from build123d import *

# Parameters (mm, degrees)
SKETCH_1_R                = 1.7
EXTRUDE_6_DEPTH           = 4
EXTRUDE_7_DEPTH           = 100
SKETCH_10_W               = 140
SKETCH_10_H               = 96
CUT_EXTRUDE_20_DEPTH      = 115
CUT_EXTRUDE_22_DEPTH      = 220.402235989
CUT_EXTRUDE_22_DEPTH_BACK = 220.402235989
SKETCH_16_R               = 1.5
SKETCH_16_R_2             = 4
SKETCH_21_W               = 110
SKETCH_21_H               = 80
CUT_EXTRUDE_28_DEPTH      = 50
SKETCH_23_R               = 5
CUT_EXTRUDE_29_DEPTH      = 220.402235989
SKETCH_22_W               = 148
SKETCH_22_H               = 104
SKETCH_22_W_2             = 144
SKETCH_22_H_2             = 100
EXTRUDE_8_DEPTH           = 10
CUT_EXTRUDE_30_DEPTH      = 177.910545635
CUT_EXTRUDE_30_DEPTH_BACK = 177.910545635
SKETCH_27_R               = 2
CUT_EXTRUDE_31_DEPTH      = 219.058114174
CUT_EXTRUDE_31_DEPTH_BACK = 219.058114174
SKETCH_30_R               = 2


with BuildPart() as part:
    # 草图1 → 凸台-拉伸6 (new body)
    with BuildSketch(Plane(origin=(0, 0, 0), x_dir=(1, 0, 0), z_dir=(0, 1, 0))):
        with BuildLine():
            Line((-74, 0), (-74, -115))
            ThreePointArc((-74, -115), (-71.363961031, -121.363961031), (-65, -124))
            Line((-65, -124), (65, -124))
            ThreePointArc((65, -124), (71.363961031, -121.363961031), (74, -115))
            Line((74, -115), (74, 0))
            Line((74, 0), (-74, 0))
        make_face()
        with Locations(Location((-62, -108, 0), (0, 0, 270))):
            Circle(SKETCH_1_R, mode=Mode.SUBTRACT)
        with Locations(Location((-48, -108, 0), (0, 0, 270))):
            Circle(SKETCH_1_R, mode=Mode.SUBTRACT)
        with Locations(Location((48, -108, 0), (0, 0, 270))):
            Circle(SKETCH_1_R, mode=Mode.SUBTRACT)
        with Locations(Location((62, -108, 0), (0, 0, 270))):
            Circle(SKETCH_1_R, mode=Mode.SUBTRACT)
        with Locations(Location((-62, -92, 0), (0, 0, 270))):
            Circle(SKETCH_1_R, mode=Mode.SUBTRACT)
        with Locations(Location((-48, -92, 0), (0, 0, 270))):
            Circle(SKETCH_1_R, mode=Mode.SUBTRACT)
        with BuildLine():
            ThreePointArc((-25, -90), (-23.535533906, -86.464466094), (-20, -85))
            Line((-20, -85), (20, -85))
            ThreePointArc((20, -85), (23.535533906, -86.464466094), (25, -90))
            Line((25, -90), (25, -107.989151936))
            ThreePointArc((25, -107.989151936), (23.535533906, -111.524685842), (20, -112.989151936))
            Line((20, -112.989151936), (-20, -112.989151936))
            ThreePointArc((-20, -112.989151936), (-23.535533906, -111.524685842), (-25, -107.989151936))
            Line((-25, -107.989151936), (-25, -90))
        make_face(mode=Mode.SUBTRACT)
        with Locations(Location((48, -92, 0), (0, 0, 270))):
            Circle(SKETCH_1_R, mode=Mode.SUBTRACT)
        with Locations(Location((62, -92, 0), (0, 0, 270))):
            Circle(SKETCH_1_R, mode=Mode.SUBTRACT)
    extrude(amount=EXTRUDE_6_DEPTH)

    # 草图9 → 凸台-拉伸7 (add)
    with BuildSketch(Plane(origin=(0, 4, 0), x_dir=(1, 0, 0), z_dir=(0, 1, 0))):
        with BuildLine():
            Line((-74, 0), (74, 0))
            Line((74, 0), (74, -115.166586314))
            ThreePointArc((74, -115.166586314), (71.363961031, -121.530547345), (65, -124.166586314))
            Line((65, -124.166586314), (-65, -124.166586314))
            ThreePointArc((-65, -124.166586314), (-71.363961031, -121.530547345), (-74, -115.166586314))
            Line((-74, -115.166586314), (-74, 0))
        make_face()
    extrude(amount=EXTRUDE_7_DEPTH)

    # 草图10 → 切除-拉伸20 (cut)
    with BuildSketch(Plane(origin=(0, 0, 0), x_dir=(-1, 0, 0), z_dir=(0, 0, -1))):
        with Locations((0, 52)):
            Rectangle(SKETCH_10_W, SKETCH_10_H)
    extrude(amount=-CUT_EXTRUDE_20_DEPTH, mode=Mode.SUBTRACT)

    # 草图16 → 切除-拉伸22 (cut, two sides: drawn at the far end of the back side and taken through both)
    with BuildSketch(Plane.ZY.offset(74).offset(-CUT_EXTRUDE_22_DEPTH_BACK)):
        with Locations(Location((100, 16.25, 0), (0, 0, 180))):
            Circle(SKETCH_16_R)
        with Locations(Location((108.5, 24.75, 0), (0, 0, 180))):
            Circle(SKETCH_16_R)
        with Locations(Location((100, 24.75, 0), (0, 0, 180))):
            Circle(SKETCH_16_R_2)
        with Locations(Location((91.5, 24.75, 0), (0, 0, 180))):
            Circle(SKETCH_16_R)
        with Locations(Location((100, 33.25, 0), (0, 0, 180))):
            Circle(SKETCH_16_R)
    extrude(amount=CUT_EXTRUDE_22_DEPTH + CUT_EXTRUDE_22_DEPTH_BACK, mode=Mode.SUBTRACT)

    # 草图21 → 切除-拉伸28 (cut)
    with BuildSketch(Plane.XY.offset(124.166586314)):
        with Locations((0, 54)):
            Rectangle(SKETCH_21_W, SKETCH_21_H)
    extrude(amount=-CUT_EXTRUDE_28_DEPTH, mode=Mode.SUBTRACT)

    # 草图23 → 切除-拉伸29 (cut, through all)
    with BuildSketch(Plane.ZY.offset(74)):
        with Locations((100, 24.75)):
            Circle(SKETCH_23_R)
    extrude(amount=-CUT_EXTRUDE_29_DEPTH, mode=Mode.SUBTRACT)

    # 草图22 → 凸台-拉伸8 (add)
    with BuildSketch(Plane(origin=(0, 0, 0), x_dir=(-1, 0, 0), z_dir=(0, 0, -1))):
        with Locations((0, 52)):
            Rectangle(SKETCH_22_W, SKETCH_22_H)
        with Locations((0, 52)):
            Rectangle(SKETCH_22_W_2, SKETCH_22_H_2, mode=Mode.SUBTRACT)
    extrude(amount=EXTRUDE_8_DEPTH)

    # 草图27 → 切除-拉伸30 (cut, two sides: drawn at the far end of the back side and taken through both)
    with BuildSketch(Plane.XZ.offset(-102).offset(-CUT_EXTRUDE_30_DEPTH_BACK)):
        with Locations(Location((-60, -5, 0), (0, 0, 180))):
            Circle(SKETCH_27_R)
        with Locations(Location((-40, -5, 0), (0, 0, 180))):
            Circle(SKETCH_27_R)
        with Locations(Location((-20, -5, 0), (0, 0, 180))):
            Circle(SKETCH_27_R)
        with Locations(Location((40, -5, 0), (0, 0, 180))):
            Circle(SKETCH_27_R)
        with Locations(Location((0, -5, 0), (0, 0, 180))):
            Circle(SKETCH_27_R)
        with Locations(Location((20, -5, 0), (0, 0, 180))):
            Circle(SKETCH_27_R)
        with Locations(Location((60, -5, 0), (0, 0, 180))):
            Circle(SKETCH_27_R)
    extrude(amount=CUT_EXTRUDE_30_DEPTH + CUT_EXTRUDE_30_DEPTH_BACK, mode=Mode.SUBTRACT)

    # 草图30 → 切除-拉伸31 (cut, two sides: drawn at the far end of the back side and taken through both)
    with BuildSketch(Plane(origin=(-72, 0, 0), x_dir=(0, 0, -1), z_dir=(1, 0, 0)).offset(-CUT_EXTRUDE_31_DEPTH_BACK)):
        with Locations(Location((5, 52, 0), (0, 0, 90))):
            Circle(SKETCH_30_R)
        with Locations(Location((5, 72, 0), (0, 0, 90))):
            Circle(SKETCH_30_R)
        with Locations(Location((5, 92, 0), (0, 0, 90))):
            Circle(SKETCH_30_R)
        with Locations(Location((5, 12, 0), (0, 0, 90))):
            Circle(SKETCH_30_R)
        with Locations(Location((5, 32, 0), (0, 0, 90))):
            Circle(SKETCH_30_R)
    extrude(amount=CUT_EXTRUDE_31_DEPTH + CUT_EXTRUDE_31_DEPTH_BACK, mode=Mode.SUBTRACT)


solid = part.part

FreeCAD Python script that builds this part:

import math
import FreeCAD as App
import Part
import Sketcher

V = App.Vector
Q = App.Units.Quantity

doc = App.newDocument("Part")
body = doc.addObject("PartDesign::Body", "Body")

sketch1 = doc.addObject("Sketcher::SketchObject", "Sketch")
body.addObject(sketch1)
sketch1.AttachmentSupport = (doc.XZ_Plane, [""])
sketch1.MapMode = "FlatFace"
sketch1.addGeometry([
    Part.LineSegment(V(-74, 0, 0), V(-74, 115, 0)),
    Part.ArcOfCircle(Part.Circle(V(-65, 115, 0), V(0, 0, 1), 9), math.radians(90), math.radians(180)),
    Part.LineSegment(V(-65, 124, 0), V(65, 124, 0)),
    Part.ArcOfCircle(Part.Circle(V(65, 115, 0), V(0, 0, 1), 9), math.radians(0), math.radians(90)),
    Part.LineSegment(V(74, 115, 0), V(74, 0, 0)),
    Part.LineSegment(V(74, 0, 0), V(-74, 0, 0)),
    Part.Circle(V(-62, 108, 0), V(0, 0, 1), 1.7),
    Part.Circle(V(-48, 108, 0), V(0, 0, 1), 1.7),
    Part.Circle(V(48, 108, 0), V(0, 0, 1), 1.7),
    Part.Circle(V(62, 108, 0), V(0, 0, 1), 1.7),
    Part.LineSegment(V(-25, 107.989152, 0), V(-25, 90, 0)),
    Part.ArcOfCircle(Part.Circle(V(-20, 90, 0), V(0, 0, 1), 5), math.radians(180), math.radians(270)),
    Part.LineSegment(V(-20, 85, 0), V(20, 85, 0)),
    Part.ArcOfCircle(Part.Circle(V(20, 90, 0), V(0, 0, 1), 5), math.radians(-90), math.radians(0)),
    Part.LineSegment(V(25, 90, 0), V(25, 107.989152, 0)),
    Part.ArcOfCircle(Part.Circle(V(20, 107.989152, 0), V(0, 0, 1), 5), math.radians(0), math.radians(90)),
    Part.LineSegment(V(20, 112.989152, 0), V(-20, 112.989152, 0)),
    Part.ArcOfCircle(Part.Circle(V(-20, 107.989152, 0), V(0, 0, 1), 5), math.radians(90), math.radians(180)),
    Part.Circle(V(-62, 92, 0), V(0, 0, 1), 1.7),
    Part.Circle(V(-48, 92, 0), V(0, 0, 1), 1.7),
    Part.Circle(V(48, 92, 0), V(0, 0, 1), 1.7),
    Part.Circle(V(62, 92, 0), V(0, 0, 1), 1.7),
], False)
sketch1.addConstraint([
    Sketcher.Constraint("Tangent", 0, 2, 1, 2),
    Sketcher.Constraint("Tangent", 1, 1, 2, 1),
    Sketcher.Constraint("Tangent", 2, 2, 3, 2),
    Sketcher.Constraint("Tangent", 3, 1, 4, 1),
    Sketcher.Constraint("Coincident", 4, 2, 5, 1),
    Sketcher.Constraint("Coincident", 5, 2, 0, 1),
    Sketcher.Constraint("Tangent", 10, 2, 11, 1),
    Sketcher.Constraint("Tangent", 11, 2, 12, 1),
    Sketcher.Constraint("Tangent", 12, 2, 13, 1),
    Sketcher.Constraint("Tangent", 13, 2, 14, 1),
    Sketcher.Constraint("Tangent", 14, 2, 15, 1),
    Sketcher.Constraint("Tangent", 15, 2, 16, 1),
    Sketcher.Constraint("Tangent", 16, 2, 17, 1),
    Sketcher.Constraint("Tangent", 17, 2, 10, 1),
    Sketcher.Constraint("Vertical", 0),
    Sketcher.Constraint("Horizontal", 2),
    Sketcher.Constraint("Vertical", 4),
    Sketcher.Constraint("Horizontal", 5),
    Sketcher.Constraint("Vertical", 10),
    Sketcher.Constraint("Horizontal", 12),
    Sketcher.Constraint("Vertical", 14),
    Sketcher.Constraint("Horizontal", 16),
    Sketcher.Constraint("Equal", 1, 3),
    Sketcher.Constraint("Equal", 6, 7),
    Sketcher.Constraint("Equal", 7, 8),
    Sketcher.Constraint("Equal", 8, 9),
    Sketcher.Constraint("Equal", 11, 13),
    Sketcher.Constraint("Equal", 13, 15),
    Sketcher.Constraint("Equal", 15, 17),
    Sketcher.Constraint("Equal", 9, 18),
    Sketcher.Constraint("Equal", 18, 19),
    Sketcher.Constraint("Equal", 19, 20),
    Sketcher.Constraint("Equal", 20, 21),
    Sketcher.Constraint("Symmetric", 4, 2, 5, 2, -1, 1),
    Sketcher.Constraint("Symmetric", 7, 3, 8, 3, -2),
    Sketcher.Constraint("Symmetric", 6, 3, 9, 3, -2),
    Sketcher.Constraint("Symmetric", 19, 3, 20, 3, -2),
    Sketcher.Constraint("Symmetric", 18, 3, 21, 3, -2),
    Sketcher.Constraint("Horizontal", 6, 3, 7, 3),
    Sketcher.Constraint("Horizontal", 18, 3, 19, 3),
    Sketcher.Constraint("Vertical", 6, 3, 18, 3),
    Sketcher.Constraint("Vertical", 7, 3, 19, 3),
    Sketcher.Constraint("Radius", 1, Q("9 mm")),
    Sketcher.Constraint("Radius", 11, Q("5 mm")),
    Sketcher.Constraint("Diameter", 6, Q("3.4 mm")),
    Sketcher.Constraint("DistanceX", 2, 1, 2, 2, Q("130 mm")),
    Sketcher.Constraint("DistanceX", 12, 1, 12, 2, Q("40 mm")),
    Sketcher.Constraint("DistanceY", 0, 1, 0, 2, Q("115 mm")),
    Sketcher.Constraint("DistanceX", 6, 3, -1, 1, Q("62 mm")),
    Sketcher.Constraint("DistanceY", -1, 1, 6, 3, Q("108 mm")),
    Sketcher.Constraint("DistanceX", 7, 3, -1, 1, Q("48 mm")),
    Sketcher.Constraint("DistanceX", 11, 3, -1, 1, Q("20 mm")),
    Sketcher.Constraint("DistanceY", -1, 1, 11, 3, Q("90 mm")),
    Sketcher.Constraint("DistanceY", -1, 1, 18, 3, Q("92 mm")),
    Sketcher.Constraint("DistanceY", 10, 2, 10, 1, Q("17.989152 mm")),
])
pad1 = doc.addObject("PartDesign::Pad", "Pad")
body.addObject(pad1)
pad1.Profile = sketch1
pad1.Length = 4
pad1.Reversed = True

sketch2 = doc.addObject("Sketcher::SketchObject", "Sketch001")
body.addObject(sketch2)
sketch2.AttachmentSupport = (doc.XZ_Plane, [""])
sketch2.MapMode = "FlatFace"
sketch2.AttachmentOffset = App.Placement(V(0, 0, -4), App.Rotation())
sketch2.addGeometry([
    Part.LineSegment(V(74, 0, 0), V(-74, 0, 0)),
    Part.LineSegment(V(-74, 0, 0), V(-74, 115.166586, 0)),
    Part.ArcOfCircle(Part.Circle(V(-65, 115.166586, 0), V(0, 0, 1), 9), math.radians(90), math.radians(180)),
    Part.LineSegment(V(-65, 124.166586, 0), V(65, 124.166586, 0)),
    Part.ArcOfCircle(Part.Circle(V(65, 115.166586, 0), V(0, 0, 1), 9), math.radians(0), math.radians(90)),
    Part.LineSegment(V(74, 115.166586, 0), V(74, 0, 0)),
], False)
sketch2.addConstraint([
    Sketcher.Constraint("Coincident", 0, 2, 1, 1),
    Sketcher.Constraint("Tangent", 1, 2, 2, 2),
    Sketcher.Constraint("Tangent", 2, 1, 3, 1),
    Sketcher.Constraint("Tangent", 3, 2, 4, 2),
    Sketcher.Constraint("Tangent", 4, 1, 5, 1),
    Sketcher.Constraint("Coincident", 5, 2, 0, 1),
    Sketcher.Constraint("Horizontal", 0),
    Sketcher.Constraint("Vertical", 1),
    Sketcher.Constraint("Horizontal", 3),
    Sketcher.Constraint("Vertical", 5),
    Sketcher.Constraint("Equal", 2, 4),
    Sketcher.Constraint("Symmetric", 0, 2, 5, 2, -1, 1),
    Sketcher.Constraint("Radius", 2, Q("9 mm")),
    Sketcher.Constraint("DistanceX", 0, 2, 0, 1, Q("148 mm")),
    Sketcher.Constraint("DistanceY", 1, 1, 1, 2, Q("115.166586 mm")),
])
pad2 = doc.addObject("PartDesign::Pad", "Pad001")
body.addObject(pad2)
pad2.Profile = sketch2
pad2.Length = 100
pad2.Reversed = True

sketch3 = doc.addObject("Sketcher::SketchObject", "Sketch002")
body.addObject(sketch3)
sketch3.AttachmentSupport = (doc.XY_Plane, [""])
sketch3.MapMode = "FlatFace"
sketch3.addGeometry([
    Part.LineSegment(V(70, 100, 0), V(70, 4, 0)),
    Part.LineSegment(V(70, 4, 0), V(-70, 4, 0)),
    Part.LineSegment(V(-70, 4, 0), V(-70, 100, 0)),
    Part.LineSegment(V(-70, 100, 0), V(70, 100, 0)),
], False)
sketch3.addConstraint([
    Sketcher.Constraint("Coincident", 0, 2, 1, 1),
    Sketcher.Constraint("Coincident", 1, 2, 2, 1),
    Sketcher.Constraint("Coincident", 2, 2, 3, 1),
    Sketcher.Constraint("Coincident", 3, 2, 0, 1),
    Sketcher.Constraint("Vertical", 0),
    Sketcher.Constraint("Horizontal", 1),
    Sketcher.Constraint("Vertical", 2),
    Sketcher.Constraint("Horizontal", 3),
    Sketcher.Constraint("DistanceX", 1, 2, 1, 1, Q("140 mm")),
    Sketcher.Constraint("DistanceY", 0, 2, 0, 1, Q("96 mm")),
    Sketcher.Constraint("DistanceX", -1, 1, 0, 2, Q("70 mm")),
    Sketcher.Constraint("DistanceY", -1, 1, 0, 2, Q("4 mm")),
])
pocket1 = doc.addObject("PartDesign::Pocket", "Pocket")
body.addObject(pocket1)
pocket1.Profile = sketch3
pocket1.Length = 115
pocket1.Reversed = True

sketch4 = doc.addObject("Sketcher::SketchObject", "Sketch003")
body.addObject(sketch4)
sketch4.AttachmentSupport = (doc.YZ_Plane, [""])
sketch4.MapMode = "FlatFace"
sketch4.AttachmentOffset = App.Placement(V(0, 0, -74), App.Rotation())
sketch4.addGeometry([
    Part.Circle(V(16.25, 100, 0), V(0, 0, 1), 1.5),
    Part.Circle(V(24.75, 108.5, 0), V(0, 0, 1), 1.5),
    Part.Circle(V(24.75, 100, 0), V(0, 0, 1), 4),
    Part.Circle(V(24.75, 91.5, 0), V(0, 0, 1), 1.5),
    Part.Circle(V(33.25, 100, 0), V(0, 0, 1), 1.5),
], False)
sketch4.addConstraint([
    Sketcher.Constraint("Equal", 0, 1),
    Sketcher.Constraint("Equal", 1, 3),
    Sketcher.Constraint("Equal", 3, 4),
    Sketcher.Constraint("Horizontal", 0, 3, 2, 3),
    Sketcher.Constraint("Horizontal", 2, 3, 4, 3),
    Sketcher.Constraint("Vertical", 1, 3, 2, 3),
    Sketcher.Constraint("Vertical", 2, 3, 3, 3),
    Sketcher.Constraint("Diameter", 0, Q("3 mm")),
    Sketcher.Constraint("Diameter", 2, Q("8 mm")),
    Sketcher.Constraint("DistanceY", -1, 1, 0, 3, Q("100 mm")),
    Sketcher.Constraint("DistanceY", 3, 3, 1, 3, Q("17 mm")),
    Sketcher.Constraint("DistanceX", 0, 3, 4, 3, Q("17 mm")),
    Sketcher.Constraint("DistanceY", -1, 1, 1, 3, Q("108.5 mm")),
    Sketcher.Constraint("DistanceX", 0, 3, 1, 3, Q("8.5 mm")),
    Sketcher.Constraint("DistanceX", -1, 1, 0, 3, Q("16.25 mm")),
])
pocket2 = doc.addObject("PartDesign::Pocket", "Pocket001")
body.addObject(pocket2)
pocket2.Profile = sketch4
pocket2.Type = "ThroughAll"
pocket2.Midplane = True

sketch5 = doc.addObject("Sketcher::SketchObject", "Sketch004")
body.addObject(sketch5)
sketch5.AttachmentSupport = (doc.XY_Plane, [""])
sketch5.MapMode = "FlatFace"
sketch5.AttachmentOffset = App.Placement(V(0, 0, 124.166586), App.Rotation())
sketch5.addGeometry([
    Part.LineSegment(V(-55, 94, 0), V(-55, 14, 0)),
    Part.LineSegment(V(-55, 14, 0), V(55, 14, 0)),
    Part.LineSegment(V(55, 14, 0), V(55, 94, 0)),
    Part.LineSegment(V(55, 94, 0), V(-55, 94, 0)),
], False)
sketch5.addConstraint([
    Sketcher.Constraint("Coincident", 0, 2, 1, 1),
    Sketcher.Constraint("Coincident", 1, 2, 2, 1),
    Sketcher.Constraint("Coincident", 2, 2, 3, 1),
    Sketcher.Constraint("Coincident", 3, 2, 0, 1),
    Sketcher.Constraint("Vertical", 0),
    Sketcher.Constraint("Horizontal", 1),
    Sketcher.Constraint("Vertical", 2),
    Sketcher.Constraint("Horizontal", 3),
    Sketcher.Constraint("DistanceX", 1, 1, 1, 2, Q("110 mm")),
    Sketcher.Constraint("DistanceY", 0, 2, 0, 1, Q("80 mm")),
    Sketcher.Constraint("DistanceX", 0, 2, -1, 1, Q("55 mm")),
    Sketcher.Constraint("DistanceY", -1, 1, 0, 2, Q("14 mm")),
])
pocket3 = doc.addObject("PartDesign::Pocket", "Pocket002")
body.addObject(pocket3)
pocket3.Profile = sketch5
pocket3.Length = 50

sketch6 = doc.addObject("Sketcher::SketchObject", "Sketch005")
body.addObject(sketch6)
sketch6.AttachmentSupport = (doc.YZ_Plane, [""])
sketch6.MapMode = "FlatFace"
sketch6.AttachmentOffset = App.Placement(V(0, 0, -74), App.Rotation())
sketch6.addGeometry(Part.Circle(V(24.75, 100, 0), V(0, 0, 1), 5), False)
sketch6.addConstraint([
    Sketcher.Constraint("Diameter", 0, Q("10 mm")),
    Sketcher.Constraint("DistanceY", -1, 1, 0, 3, Q("100 mm")),
    Sketcher.Constraint("DistanceX", -1, 1, 0, 3, Q("24.75 mm")),
])
pocket4 = doc.addObject("PartDesign::Pocket", "Pocket003")
body.addObject(pocket4)
pocket4.Profile = sketch6
pocket4.Type = "ThroughAll"
pocket4.Reversed = True

sketch7 = doc.addObject("Sketcher::SketchObject", "Sketch006")
body.addObject(sketch7)
sketch7.AttachmentSupport = (doc.XY_Plane, [""])
sketch7.MapMode = "FlatFace"
sketch7.addGeometry([
    Part.LineSegment(V(74, 104, 0), V(74, 0, 0)),
    Part.LineSegment(V(74, 0, 0), V(-74, 0, 0)),
    Part.LineSegment(V(-74, 0, 0), V(-74, 104, 0)),
    Part.LineSegment(V(-74, 104, 0), V(74, 104, 0)),
    Part.LineSegment(V(-72, 2, 0), V(72, 2, 0)),
    Part.LineSegment(V(72, 2, 0), V(72, 102, 0)),
    Part.LineSegment(V(72, 102, 0), V(-72, 102, 0)),
    Part.LineSegment(V(-72, 102, 0), V(-72, 2, 0)),
], False)
sketch7.addConstraint([
    Sketcher.Constraint("Coincident", 0, 2, 1, 1),
    Sketcher.Constraint("Coincident", 1, 2, 2, 1),
    Sketcher.Constraint("Coincident", 2, 2, 3, 1),
    Sketcher.Constraint("Coincident", 3, 2, 0, 1),
    Sketcher.Constraint("Coincident", 4, 2, 5, 1),
    Sketcher.Constraint("Coincident", 5, 2, 6, 1),
    Sketcher.Constraint("Coincident", 6, 2, 7, 1),
    Sketcher.Constraint("Coincident", 7, 2, 4, 1),
    Sketcher.Constraint("Vertical", 0),
    Sketcher.Constraint("Horizontal", 1),
    Sketcher.Constraint("Vertical", 2),
    Sketcher.Constraint("Horizontal", 3),
    Sketcher.Constraint("Horizontal", 4),
    Sketcher.Constraint("Vertical", 5),
    Sketcher.Constraint("Horizontal", 6),
    Sketcher.Constraint("Vertical", 7),
    Sketcher.Constraint("Symmetric", 0, 2, 1, 2, -1, 1),
    Sketcher.Constraint("DistanceX", 1, 2, 1, 1, Q("148 mm")),
    Sketcher.Constraint("DistanceX", 4, 1, 4, 2, Q("144 mm")),
    Sketcher.Constraint("DistanceY", 0, 2, 0, 1, Q("104 mm")),
    Sketcher.Constraint("DistanceY", 5, 1, 5, 2, Q("100 mm")),
    Sketcher.Constraint("DistanceX", -1, 1, 4, 2, Q("72 mm")),
    Sketcher.Constraint("DistanceY", -1, 1, 4, 2, Q("2 mm")),
])
pad3 = doc.addObject("PartDesign::Pad", "Pad002")
body.addObject(pad3)
pad3.Profile = sketch7
pad3.Length = 10
pad3.Reversed = True

sketch8 = doc.addObject("Sketcher::SketchObject", "Sketch007")
body.addObject(sketch8)
sketch8.AttachmentSupport = (doc.XZ_Plane, [""])
sketch8.MapMode = "FlatFace"
sketch8.AttachmentOffset = App.Placement(V(0, 0, -102), App.Rotation())
sketch8.addGeometry([
    Part.Circle(V(-60, -5, 0), V(0, 0, 1), 2),
    Part.Circle(V(-40, -5, 0), V(0, 0, 1), 2),
    Part.Circle(V(-20, -5, 0), V(0, 0, 1), 2),
    Part.Circle(V(40, -5, 0), V(0, 0, 1), 2),
    Part.Circle(V(0, -5, 0), V(0, 0, 1), 2),
    Part.Circle(V(20, -5, 0), V(0, 0, 1), 2),
    Part.Circle(V(60, -5, 0), V(0, 0, 1), 2),
], False)
sketch8.addConstraint([
    Sketcher.Constraint("Equal", 0, 1),
    Sketcher.Constraint("Equal", 1, 2),
    Sketcher.Constraint("Equal", 2, 3),
    Sketcher.Constraint("Equal", 3, 4),
    Sketcher.Constraint("Equal", 4, 5),
    Sketcher.Constraint("Equal", 5, 6),
    Sketcher.Constraint("Symmetric", 1, 3, 3, 3, -2),
    Sketcher.Constraint("Symmetric", 2, 3, 5, 3, -2),
    Sketcher.Constraint("Symmetric", 0, 3, 6, 3, -2),
    Sketcher.Constraint("PointOnObject", 4, 3, -2),
    Sketcher.Constraint("Horizontal", 0, 3, 1, 3),
    Sketcher.Constraint("Horizontal", 1, 3, 2, 3),
    Sketcher.Constraint("Horizontal", 3, 3, 4, 3),
    Sketcher.Constraint("Diameter", 0, Q("4 mm")),
    Sketcher.Constraint("DistanceX", 0, 3, -1, 1, Q("60 mm")),
    Sketcher.Constraint("DistanceY", 0, 3, -1, 1, Q("5 mm")),
    Sketcher.Constraint("DistanceX", 1, 3, -1, 1, Q("40 mm")),
    Sketcher.Constraint("DistanceX", 2, 3, -1, 1, Q("20 mm")),
])
pocket5 = doc.addObject("PartDesign::Pocket", "Pocket004")
body.addObject(pocket5)
pocket5.Profile = sketch8
pocket5.Type = "ThroughAll"
pocket5.Midplane = True

sketch9 = doc.addObject("Sketcher::SketchObject", "Sketch008")
body.addObject(sketch9)
sketch9.AttachmentSupport = (doc.YZ_Plane, [""])
sketch9.MapMode = "FlatFace"
sketch9.AttachmentOffset = App.Placement(V(0, 0, -72), App.Rotation())
sketch9.addGeometry([
    Part.Circle(V(52, -5, 0), V(0, 0, 1), 2),
    Part.Circle(V(72, -5, 0), V(0, 0, 1), 2),
    Part.Circle(V(92, -5, 0), V(0, 0, 1), 2),
    Part.Circle(V(12, -5, 0), V(0, 0, 1), 2),
    Part.Circle(V(32, -5, 0), V(0, 0, 1), 2),
], False)
sketch9.addConstraint([
    Sketcher.Constraint("Equal", 0, 1),
    Sketcher.Constraint("Equal", 1, 2),
    Sketcher.Constraint("Equal", 2, 3),
    Sketcher.Constraint("Equal", 3, 4),
    Sketcher.Constraint("Horizontal", 0, 3, 1, 3),
    Sketcher.Constraint("Horizontal", 1, 3, 2, 3),
    Sketcher.Constraint("Horizontal", 2, 3, 3, 3),
    Sketcher.Constraint("Horizontal", 3, 3, 4, 3),
    Sketcher.Constraint("Diameter", 0, Q("4 mm")),
    Sketcher.Constraint("DistanceX", -1, 1, 0, 3, Q("52 mm")),
    Sketcher.Constraint("DistanceY", 0, 3, -1, 1, Q("5 mm")),
    Sketcher.Constraint("DistanceX", -1, 1, 1, 3, Q("72 mm")),
    Sketcher.Constraint("DistanceX", -1, 1, 2, 3, Q("92 mm")),
    Sketcher.Constraint("DistanceX", -1, 1, 3, 3, Q("12 mm")),
    Sketcher.Constraint("DistanceX", -1, 1, 4, 3, Q("32 mm")),
])
pocket6 = doc.addObject("PartDesign::Pocket", "Pocket005")
body.addObject(pocket6)
pocket6.Profile = sketch9
pocket6.Type = "ThroughAll"
pocket6.Midplane = True

doc.recompute()
